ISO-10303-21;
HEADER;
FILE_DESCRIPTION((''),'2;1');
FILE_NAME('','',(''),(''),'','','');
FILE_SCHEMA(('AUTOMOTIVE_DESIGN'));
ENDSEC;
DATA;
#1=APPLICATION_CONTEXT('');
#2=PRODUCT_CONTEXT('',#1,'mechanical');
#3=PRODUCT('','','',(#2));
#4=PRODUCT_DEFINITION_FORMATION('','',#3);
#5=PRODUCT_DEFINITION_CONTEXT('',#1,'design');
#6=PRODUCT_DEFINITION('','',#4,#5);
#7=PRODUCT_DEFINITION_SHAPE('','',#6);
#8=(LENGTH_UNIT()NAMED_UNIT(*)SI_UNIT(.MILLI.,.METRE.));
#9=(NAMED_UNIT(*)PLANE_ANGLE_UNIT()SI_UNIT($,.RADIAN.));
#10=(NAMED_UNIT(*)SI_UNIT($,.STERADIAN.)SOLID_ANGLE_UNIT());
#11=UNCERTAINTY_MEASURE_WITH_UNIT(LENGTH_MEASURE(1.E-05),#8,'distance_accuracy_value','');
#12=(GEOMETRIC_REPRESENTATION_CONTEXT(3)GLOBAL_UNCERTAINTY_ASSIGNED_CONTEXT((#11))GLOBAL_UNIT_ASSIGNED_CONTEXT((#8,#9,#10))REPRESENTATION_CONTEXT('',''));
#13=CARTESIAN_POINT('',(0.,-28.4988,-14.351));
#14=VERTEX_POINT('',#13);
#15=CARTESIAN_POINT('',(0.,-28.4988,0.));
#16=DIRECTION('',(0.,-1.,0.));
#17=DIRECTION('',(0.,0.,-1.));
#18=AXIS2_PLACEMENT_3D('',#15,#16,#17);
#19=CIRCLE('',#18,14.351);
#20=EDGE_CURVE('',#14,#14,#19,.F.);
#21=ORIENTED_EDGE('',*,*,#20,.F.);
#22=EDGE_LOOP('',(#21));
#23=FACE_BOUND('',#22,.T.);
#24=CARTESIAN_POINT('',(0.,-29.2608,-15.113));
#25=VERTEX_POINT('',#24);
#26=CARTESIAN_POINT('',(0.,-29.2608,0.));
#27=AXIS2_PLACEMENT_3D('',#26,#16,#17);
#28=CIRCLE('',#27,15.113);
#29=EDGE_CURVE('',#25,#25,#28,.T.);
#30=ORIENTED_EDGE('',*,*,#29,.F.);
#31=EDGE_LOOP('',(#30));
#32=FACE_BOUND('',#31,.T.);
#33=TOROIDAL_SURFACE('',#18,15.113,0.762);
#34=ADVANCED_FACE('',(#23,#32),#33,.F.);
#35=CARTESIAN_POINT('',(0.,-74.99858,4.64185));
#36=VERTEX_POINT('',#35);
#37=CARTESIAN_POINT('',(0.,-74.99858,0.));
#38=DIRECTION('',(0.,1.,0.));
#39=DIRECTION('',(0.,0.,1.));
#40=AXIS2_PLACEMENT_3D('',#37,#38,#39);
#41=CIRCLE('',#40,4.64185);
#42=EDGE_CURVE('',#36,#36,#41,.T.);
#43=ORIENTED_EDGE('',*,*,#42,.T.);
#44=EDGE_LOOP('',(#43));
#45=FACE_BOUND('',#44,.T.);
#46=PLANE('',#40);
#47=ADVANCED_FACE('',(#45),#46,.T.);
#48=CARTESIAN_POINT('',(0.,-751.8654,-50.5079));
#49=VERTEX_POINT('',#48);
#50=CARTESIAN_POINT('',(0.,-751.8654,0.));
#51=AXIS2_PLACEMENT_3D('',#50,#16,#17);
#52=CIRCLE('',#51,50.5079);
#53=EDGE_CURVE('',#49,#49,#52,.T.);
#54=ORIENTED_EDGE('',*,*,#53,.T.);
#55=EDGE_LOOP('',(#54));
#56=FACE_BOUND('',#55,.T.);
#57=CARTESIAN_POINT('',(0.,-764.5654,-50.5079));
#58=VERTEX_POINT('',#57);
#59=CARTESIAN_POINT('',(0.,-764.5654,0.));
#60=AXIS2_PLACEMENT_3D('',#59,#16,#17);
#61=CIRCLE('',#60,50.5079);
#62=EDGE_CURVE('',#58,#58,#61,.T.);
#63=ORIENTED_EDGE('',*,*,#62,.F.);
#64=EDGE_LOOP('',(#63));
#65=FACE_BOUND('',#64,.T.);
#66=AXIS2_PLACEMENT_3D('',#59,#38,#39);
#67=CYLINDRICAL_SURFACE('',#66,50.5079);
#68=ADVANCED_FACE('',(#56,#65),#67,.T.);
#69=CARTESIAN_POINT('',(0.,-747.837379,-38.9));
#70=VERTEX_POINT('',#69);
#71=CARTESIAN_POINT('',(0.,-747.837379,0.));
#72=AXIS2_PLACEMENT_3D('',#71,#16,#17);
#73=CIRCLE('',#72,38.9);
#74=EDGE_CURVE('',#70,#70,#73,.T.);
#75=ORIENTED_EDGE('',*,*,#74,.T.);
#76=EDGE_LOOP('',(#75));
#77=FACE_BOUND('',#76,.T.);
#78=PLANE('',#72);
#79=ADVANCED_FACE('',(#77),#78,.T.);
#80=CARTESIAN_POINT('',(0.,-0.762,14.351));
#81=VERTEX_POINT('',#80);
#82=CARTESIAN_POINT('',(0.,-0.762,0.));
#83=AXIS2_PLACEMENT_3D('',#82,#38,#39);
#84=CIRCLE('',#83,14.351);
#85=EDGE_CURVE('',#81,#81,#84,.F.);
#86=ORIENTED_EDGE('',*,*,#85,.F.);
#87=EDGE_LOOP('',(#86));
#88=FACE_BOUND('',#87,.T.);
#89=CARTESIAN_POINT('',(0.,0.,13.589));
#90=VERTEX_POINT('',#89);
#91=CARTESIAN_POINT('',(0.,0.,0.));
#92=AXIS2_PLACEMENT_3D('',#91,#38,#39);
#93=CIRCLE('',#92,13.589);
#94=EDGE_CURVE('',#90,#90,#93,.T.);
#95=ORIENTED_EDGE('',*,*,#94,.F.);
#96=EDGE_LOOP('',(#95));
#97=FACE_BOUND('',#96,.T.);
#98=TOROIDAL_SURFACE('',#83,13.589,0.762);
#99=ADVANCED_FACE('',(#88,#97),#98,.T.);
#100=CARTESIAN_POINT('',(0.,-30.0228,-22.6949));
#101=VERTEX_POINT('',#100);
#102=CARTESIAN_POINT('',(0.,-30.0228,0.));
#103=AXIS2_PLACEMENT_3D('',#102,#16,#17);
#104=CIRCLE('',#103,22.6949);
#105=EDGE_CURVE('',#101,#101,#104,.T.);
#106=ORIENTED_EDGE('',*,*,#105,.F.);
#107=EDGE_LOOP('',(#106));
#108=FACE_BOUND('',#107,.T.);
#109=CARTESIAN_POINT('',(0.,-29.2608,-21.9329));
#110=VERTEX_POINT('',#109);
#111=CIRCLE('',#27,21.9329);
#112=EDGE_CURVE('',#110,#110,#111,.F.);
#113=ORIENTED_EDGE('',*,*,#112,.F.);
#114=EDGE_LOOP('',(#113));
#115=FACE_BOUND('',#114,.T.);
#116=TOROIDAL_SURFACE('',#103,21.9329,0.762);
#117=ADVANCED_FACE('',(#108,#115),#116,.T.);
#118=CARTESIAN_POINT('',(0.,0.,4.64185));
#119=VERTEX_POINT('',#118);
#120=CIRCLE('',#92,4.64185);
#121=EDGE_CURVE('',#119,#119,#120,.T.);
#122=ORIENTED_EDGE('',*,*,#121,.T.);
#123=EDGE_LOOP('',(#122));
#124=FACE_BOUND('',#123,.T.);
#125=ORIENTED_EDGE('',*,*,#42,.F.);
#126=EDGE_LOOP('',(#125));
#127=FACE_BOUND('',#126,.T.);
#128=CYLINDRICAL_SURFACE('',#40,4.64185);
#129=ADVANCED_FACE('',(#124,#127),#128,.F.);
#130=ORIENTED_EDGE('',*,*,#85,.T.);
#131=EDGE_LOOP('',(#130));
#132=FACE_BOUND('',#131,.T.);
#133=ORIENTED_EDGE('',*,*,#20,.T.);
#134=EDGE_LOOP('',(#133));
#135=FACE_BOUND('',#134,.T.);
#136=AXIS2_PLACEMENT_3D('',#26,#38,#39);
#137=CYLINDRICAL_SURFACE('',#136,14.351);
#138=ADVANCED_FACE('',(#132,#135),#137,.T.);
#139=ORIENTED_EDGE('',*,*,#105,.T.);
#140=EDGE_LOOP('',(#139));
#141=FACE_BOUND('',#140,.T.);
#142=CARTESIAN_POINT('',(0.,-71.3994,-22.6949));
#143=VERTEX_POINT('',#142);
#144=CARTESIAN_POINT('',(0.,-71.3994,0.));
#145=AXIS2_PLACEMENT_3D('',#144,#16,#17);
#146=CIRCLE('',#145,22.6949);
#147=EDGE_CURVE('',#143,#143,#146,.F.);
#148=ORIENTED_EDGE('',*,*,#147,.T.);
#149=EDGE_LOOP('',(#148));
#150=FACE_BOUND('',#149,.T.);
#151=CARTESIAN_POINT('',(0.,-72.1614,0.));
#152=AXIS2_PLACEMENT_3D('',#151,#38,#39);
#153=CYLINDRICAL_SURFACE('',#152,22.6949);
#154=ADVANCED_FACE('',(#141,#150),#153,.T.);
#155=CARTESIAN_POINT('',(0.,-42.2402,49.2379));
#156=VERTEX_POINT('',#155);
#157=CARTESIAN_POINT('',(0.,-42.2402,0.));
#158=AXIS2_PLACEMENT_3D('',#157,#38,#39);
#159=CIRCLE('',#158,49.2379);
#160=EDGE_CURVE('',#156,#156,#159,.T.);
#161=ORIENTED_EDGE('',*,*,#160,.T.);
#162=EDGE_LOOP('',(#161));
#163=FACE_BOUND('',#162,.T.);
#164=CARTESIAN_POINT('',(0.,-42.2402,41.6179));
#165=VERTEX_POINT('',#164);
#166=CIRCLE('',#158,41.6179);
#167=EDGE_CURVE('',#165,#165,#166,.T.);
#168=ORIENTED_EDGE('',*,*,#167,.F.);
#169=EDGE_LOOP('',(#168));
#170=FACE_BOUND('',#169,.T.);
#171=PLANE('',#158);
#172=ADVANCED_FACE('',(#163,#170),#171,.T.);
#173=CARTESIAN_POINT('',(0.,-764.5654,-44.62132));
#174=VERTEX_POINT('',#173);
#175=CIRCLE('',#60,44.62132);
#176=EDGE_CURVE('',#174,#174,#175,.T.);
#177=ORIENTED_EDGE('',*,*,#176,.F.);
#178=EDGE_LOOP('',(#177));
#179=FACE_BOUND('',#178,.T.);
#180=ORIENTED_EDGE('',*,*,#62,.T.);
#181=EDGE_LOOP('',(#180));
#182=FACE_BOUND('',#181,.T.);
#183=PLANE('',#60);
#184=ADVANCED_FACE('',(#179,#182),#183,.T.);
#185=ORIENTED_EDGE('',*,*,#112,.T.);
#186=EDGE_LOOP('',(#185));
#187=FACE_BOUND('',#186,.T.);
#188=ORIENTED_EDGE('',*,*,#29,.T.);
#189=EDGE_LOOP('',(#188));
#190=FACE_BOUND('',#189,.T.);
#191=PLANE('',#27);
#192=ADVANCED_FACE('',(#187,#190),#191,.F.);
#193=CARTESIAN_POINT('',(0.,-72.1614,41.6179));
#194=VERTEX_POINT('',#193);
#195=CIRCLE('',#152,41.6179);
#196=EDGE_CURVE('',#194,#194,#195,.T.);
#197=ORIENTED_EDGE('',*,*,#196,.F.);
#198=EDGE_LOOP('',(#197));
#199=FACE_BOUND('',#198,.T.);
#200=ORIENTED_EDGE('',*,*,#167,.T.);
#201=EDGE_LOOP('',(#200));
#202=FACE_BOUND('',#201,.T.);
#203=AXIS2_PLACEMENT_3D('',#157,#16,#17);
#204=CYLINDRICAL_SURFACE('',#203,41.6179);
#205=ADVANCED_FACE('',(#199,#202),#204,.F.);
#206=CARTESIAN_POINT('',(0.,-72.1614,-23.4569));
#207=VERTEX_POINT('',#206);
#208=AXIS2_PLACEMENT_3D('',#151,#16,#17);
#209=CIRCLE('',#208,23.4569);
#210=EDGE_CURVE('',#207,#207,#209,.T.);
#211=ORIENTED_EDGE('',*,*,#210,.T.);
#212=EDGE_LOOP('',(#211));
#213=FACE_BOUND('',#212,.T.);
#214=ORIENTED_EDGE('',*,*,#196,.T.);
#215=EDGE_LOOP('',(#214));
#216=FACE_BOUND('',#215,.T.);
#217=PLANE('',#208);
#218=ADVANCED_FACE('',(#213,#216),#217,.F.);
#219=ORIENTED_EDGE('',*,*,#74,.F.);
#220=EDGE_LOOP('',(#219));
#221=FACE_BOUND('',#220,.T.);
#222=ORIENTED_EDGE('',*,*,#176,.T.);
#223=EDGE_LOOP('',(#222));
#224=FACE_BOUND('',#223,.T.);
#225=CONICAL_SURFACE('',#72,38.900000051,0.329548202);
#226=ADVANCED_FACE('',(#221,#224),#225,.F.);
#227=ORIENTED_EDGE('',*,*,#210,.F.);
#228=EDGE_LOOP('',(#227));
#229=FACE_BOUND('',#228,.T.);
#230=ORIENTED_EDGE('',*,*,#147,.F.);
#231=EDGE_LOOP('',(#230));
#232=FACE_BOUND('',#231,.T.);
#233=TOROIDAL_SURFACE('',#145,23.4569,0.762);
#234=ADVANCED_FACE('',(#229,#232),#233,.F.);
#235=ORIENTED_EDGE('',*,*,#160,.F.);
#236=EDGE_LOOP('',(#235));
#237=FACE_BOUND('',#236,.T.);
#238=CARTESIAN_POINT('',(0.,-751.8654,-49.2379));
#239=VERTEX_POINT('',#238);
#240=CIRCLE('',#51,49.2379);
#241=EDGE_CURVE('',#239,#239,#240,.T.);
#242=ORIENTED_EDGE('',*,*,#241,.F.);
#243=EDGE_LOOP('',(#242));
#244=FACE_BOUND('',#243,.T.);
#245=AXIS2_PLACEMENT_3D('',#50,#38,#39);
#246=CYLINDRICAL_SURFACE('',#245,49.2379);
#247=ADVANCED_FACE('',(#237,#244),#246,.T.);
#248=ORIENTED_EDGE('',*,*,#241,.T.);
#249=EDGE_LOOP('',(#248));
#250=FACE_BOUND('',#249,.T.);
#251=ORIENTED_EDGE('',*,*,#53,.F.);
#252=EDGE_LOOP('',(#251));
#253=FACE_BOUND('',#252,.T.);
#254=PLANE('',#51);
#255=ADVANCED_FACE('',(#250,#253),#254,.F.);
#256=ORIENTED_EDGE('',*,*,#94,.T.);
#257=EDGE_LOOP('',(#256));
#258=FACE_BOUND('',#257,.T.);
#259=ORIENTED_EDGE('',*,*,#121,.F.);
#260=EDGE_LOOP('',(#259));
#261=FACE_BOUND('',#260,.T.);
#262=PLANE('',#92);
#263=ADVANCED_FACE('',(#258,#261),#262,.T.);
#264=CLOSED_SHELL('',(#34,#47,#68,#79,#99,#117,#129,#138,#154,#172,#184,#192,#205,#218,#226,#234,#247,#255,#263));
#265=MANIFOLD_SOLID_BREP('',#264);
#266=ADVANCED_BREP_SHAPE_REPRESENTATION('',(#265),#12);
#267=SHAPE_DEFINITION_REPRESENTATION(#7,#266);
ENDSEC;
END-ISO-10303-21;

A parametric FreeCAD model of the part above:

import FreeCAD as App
import Part
import Sketcher

V = App.Vector
Q = App.Units.Quantity


def edges_at(feature, points):
    """Names of the edges that pass closest to the given points."""
    edges = feature.Shape.Edges
    near = lambda p: min(range(len(edges)), key=lambda i: edges[i].distToShape(Part.Vertex(*p))[0])
    return sorted({f"Edge{near(p) + 1}" for p in points})

doc = App.newDocument("Part")
body = doc.addObject("PartDesign::Body", "Body")

# Sketch on XZ plane
sketch1 = doc.addObject("Sketcher::SketchObject", "Sketch")
body.addObject(sketch1)
sketch1.AttachmentSupport = (doc.XZ_Plane, [""])
sketch1.MapMode = "FlatFace"
sketch1.addGeometry(Part.Circle(V(0, 0, 0), V(0, 0, 1), 14), False)
sketch1.addConstraint([
    Sketcher.Constraint("Coincident", 0, 3, -1, 1),
    Sketcher.Constraint("Diameter", 0, Q("1.13 in")),
])
pad1 = doc.addObject("PartDesign::Pad", "Pad")
body.addObject(pad1)
pad1.Profile = sketch1
pad1.Length = Q("1.152 in")

# Sketch on XZ plane
sketch2 = doc.addObject("Sketcher::SketchObject", "Sketch001")
body.addObject(sketch2)
sketch2.AttachmentSupport = (doc.XZ_Plane, [""])
sketch2.MapMode = "FlatFace"
sketch2.AttachmentOffset = App.Placement(V(0, 0, 1.152 * 25.4), App.Rotation())
sketch2.addGeometry(Part.Circle(V(0, 0, 0), V(0, 0, 1), 23), False)
sketch2.addConstraint([
    Sketcher.Constraint("Coincident", 0, 3, -1, 1),
    Sketcher.Constraint("Diameter", 0, Q("1.787 in")),
])
pad2 = doc.addObject("PartDesign::Pad", "Pad001")
body.addObject(pad2)
pad2.Profile = sketch2
pad2.Length = Q("1.689 in")

# Sketch on XZ plane
sketch3 = doc.addObject("Sketcher::SketchObject", "Sketch002")
body.addObject(sketch3)
sketch3.AttachmentSupport = (doc.XZ_Plane, [""])
sketch3.MapMode = "FlatFace"
sketch3.AttachmentOffset = App.Placement(V(0, 0, 2.841 * 25.4), App.Rotation())
sketch3.addGeometry(Part.Circle(V(0, 0, 0), V(0, 0, 1), 49), False)
sketch3.addConstraint([
    Sketcher.Constraint("Coincident", 0, 3, -1, 1),
    Sketcher.Constraint("Diameter", 0, Q("3.877 in")),
])
pad3 = doc.addObject("PartDesign::Pad", "Pad002")
body.addObject(pad3)
pad3.Profile = sketch3
pad3.Length = Q("26.76 in")

# Sketch on XZ plane
sketch4 = doc.addObject("Sketcher::SketchObject", "Sketch003")
body.addObject(sketch4)
sketch4.AttachmentSupport = (doc.XZ_Plane, [""])
sketch4.MapMode = "FlatFace"
sketch4.AttachmentOffset = App.Placement(V(0, 0, 2.841 * 25.4), App.Rotation())
sketch4.addGeometry([
    Part.Circle(V(0, 0, 0), V(0, 0, 1), 49),
    Part.Circle(V(0, 0, 0), V(0, 0, 1), 42),
], False)
sketch4.addConstraint([
    Sketcher.Constraint("Coincident", 0, 3, -1, 1),
    Sketcher.Constraint("Coincident", 1, 3, -1, 1),
    Sketcher.Constraint("Diameter", 0, Q("3.877 in")),
    Sketcher.Constraint("Diameter", 1, Q("3.277 in")),
])
pad4 = doc.addObject("PartDesign::Pad", "Pad003")
body.addObject(pad4)
pad4.Profile = sketch4
pad4.Length = Q("1.178 in")
pad4.Reversed = True

# Sketch on XZ plane
sketch5 = doc.addObject("Sketcher::SketchObject", "Sketch004")
body.addObject(sketch5)
sketch5.AttachmentSupport = (doc.XZ_Plane, [""])
sketch5.MapMode = "FlatFace"
sketch5.addGeometry(Part.Circle(V(0, 0, 0), V(0, 0, 1), 4.6), False)
sketch5.addConstraint([
    Sketcher.Constraint("Coincident", 0, 3, -1, 1),
    Sketcher.Constraint("Diameter", 0, Q("0.3655 in")),
])
pocket1 = doc.addObject("PartDesign::Pocket", "Pocket")
body.addObject(pocket1)
pocket1.Profile = sketch5
pocket1.Length = Q("2.9527 in")
pocket1.Reversed = True

# Sketch on XZ plane
sketch6 = doc.addObject("Sketcher::SketchObject", "Sketch005")
body.addObject(sketch6)
sketch6.AttachmentSupport = (doc.XZ_Plane, [""])
sketch6.MapMode = "FlatFace"
sketch6.AttachmentOffset = App.Placement(V(0, 0, 29.601 * 25.4), App.Rotation())
sketch6.addGeometry(Part.Circle(V(0, 0, 0), V(0, 0, 1), 51), False)
sketch6.addConstraint([
    Sketcher.Constraint("Coincident", 0, 3, -1, 1),
    Sketcher.Constraint("Diameter", 0, Q("3.977 in")),
])
pad5 = doc.addObject("PartDesign::Pad", "Pad004")
body.addObject(pad5)
pad5.Profile = sketch6
pad5.Length = Q("0.5 in")

# Sketch on XZ plane
sketch7 = doc.addObject("Sketcher::SketchObject", "Sketch006")
body.addObject(sketch7)
sketch7.AttachmentSupport = (doc.XZ_Plane, [""])
sketch7.MapMode = "FlatFace"
sketch7.AttachmentOffset = App.Placement(V(0, 0, 747.837379), App.Rotation())
sketch7.addGeometry(Part.Circle(V(0, 0, 0), V(0, 0, 1), 39), False)
sketch7.addConstraint([
    Sketcher.Constraint("Coincident", 0, 3, -1, 1),
    Sketcher.Constraint("Diameter", 0, Q("77.8 mm")),
])

# Sketch on XZ plane
sketch8 = doc.addObject("Sketcher::SketchObject", "Sketch007")
body.addObject(sketch8)
sketch8.AttachmentSupport = (doc.XZ_Plane, [""])
sketch8.MapMode = "FlatFace"
sketch8.AttachmentOffset = App.Placement(V(0, 0, 30.101 * 25.4), App.Rotation())
sketch8.addGeometry(Part.Circle(V(0, 0, 0), V(0, 0, 1), 45), False)
sketch8.addConstraint([
    Sketcher.Constraint("Coincident", 0, 3, -1, 1),
    Sketcher.Constraint("Diameter", 0, Q("89.24264 mm")),
])

subtractiveloft = doc.addObject("PartDesign::SubtractiveLoft", "SubtractiveLoft")
body.addObject(subtractiveloft)
subtractiveloft.Profile = sketch7
subtractiveloft.Sections = [sketch8]
doc.recompute()

fillet = doc.addObject("PartDesign::Fillet", "Fillet")
body.addObject(fillet)
fillet.Base = (subtractiveloft, edges_at(subtractiveloft, [
    (-14.351, 0, 0),
    (-14.351, -29.261, 0),
    (-22.695, -29.261, 0),
    (-22.695, -72.161, 0),
]))
fillet.Radius = Q("0.03 in")

doc.recompute()
